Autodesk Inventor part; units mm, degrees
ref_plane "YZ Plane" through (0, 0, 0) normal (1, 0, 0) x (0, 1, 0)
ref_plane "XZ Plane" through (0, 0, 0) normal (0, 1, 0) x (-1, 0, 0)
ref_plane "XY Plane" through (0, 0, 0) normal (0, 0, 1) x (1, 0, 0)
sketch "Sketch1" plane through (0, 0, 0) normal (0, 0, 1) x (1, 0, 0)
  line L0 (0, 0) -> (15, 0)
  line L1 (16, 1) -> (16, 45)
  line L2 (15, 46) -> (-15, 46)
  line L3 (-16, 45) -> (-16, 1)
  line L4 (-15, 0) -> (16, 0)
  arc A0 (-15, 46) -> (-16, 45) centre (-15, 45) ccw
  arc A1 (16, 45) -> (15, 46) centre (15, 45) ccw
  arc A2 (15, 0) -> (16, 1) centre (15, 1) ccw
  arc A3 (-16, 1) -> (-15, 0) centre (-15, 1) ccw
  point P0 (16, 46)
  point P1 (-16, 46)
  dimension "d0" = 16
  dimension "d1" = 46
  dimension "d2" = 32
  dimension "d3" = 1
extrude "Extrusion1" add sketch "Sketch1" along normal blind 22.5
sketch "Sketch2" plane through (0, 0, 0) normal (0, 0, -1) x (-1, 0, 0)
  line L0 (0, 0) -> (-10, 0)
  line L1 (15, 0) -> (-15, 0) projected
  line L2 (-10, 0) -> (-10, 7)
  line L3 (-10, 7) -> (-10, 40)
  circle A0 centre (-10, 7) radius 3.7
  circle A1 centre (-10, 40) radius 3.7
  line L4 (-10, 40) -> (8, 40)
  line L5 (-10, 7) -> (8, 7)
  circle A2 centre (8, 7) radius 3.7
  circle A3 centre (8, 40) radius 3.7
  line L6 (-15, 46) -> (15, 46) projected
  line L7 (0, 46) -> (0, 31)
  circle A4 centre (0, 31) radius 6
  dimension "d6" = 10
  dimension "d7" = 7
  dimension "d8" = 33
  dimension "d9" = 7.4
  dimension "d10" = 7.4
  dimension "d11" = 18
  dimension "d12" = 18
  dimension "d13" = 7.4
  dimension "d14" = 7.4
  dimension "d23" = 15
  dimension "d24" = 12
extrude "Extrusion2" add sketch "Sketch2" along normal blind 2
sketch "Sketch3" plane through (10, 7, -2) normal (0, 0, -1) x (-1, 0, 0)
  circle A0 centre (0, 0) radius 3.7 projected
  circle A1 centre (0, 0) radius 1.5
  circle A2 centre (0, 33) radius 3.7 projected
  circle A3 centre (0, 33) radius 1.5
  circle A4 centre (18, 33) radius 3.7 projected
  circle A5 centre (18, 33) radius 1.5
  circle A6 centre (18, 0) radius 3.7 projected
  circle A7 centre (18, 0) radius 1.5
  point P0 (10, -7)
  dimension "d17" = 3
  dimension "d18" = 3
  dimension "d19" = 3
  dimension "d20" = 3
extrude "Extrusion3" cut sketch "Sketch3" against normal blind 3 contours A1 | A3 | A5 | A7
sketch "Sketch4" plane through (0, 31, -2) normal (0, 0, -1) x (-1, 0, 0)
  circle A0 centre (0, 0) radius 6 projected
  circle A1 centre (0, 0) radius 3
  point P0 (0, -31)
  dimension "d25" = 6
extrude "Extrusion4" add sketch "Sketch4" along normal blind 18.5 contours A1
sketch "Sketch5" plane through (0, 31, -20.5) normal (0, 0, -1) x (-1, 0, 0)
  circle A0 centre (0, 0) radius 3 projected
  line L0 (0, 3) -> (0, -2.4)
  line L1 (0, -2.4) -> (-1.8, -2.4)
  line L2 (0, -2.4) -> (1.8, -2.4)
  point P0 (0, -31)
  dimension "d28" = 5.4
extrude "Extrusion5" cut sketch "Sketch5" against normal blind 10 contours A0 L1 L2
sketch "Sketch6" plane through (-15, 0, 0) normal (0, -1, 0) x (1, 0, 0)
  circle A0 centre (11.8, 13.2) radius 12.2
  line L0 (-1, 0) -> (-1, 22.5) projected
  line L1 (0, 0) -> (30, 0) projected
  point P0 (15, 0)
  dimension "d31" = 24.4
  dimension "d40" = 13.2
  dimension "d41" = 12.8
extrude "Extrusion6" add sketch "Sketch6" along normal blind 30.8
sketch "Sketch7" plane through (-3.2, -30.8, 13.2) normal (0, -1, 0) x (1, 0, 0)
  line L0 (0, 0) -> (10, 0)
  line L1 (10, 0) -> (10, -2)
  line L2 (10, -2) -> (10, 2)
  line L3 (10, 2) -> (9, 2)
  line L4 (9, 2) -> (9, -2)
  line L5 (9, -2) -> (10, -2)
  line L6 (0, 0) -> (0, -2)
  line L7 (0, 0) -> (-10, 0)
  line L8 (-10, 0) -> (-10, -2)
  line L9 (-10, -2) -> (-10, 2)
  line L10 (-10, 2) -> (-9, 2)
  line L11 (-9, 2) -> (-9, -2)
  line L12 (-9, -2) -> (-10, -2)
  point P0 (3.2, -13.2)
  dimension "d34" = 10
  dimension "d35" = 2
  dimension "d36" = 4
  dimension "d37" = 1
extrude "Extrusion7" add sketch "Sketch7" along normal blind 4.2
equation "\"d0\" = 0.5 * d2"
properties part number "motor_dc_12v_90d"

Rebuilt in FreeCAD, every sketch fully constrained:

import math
import FreeCAD as App
import Part
import Sketcher
from FreeCAD import Vector
Q = App.Units.Quantity

doc = App.newDocument("Part")
params = doc.addObject("Spreadsheet::Sheet", "Params")
for row, (alias, value) in enumerate([
    ("sketch1_radius", "1 mm"),
    ("pad1_length", "22.5 mm"),
    ("sketch2_diameter", "12 mm"),
    ("sketch2_diameter2", "7.4 mm"),
    ("pad2_length", "2 mm"),
    ("sketch3_diameter", "3 mm"),
    ("pocket1_length", "3 mm"),
    ("sketch4_diameter", "6 mm"),
    ("pad3_length", "18.5 mm"),
    ("sketch5_radius", "3 mm"),
    ("sketch5_width", "3.6 mm"),
    ("pocket2_length", "10 mm"),
    ("sketch6_diameter", "24.4 mm"),
    ("pad4_length", "30.8 mm"),
    ("sketch7_width", "1 mm"),
    ("sketch7_height", "4 mm"),
    ("pad5_length", "4.2 mm"),
], start=1):
    params.set(f"A{row}", alias)
    params.set(f"B{row}", "=" + value)
    params.setAlias(f"B{row}", alias)

body = doc.addObject("PartDesign::Body", "Body")

# Sketch on XY plane
sketch1 = body.newObject("Sketcher::SketchObject", "Sketch")
sketch1.AttachmentSupport = (doc.getObject("XY_Plane"), [""])
sketch1.MapMode = "FlatFace"
sketch1.addGeometry(Part.LineSegment(Vector(-15, 0, 0), Vector(15, 0, 0)), False)
sketch1.addGeometry(Part.ArcOfCircle(Part.Circle(Vector(15, 1, 0), Vector(0, 0, 1), 1), math.radians(-90), math.radians(0)), False)
sketch1.addGeometry(Part.LineSegment(Vector(16, 1, 0), Vector(16, 45, 0)), False)
sketch1.addGeometry(Part.ArcOfCircle(Part.Circle(Vector(15, 45, 0), Vector(0, 0, 1), 1), math.radians(0), math.radians(90)), False)
sketch1.addGeometry(Part.LineSegment(Vector(15, 46, 0), Vector(-15, 46, 0)), False)
sketch1.addGeometry(Part.ArcOfCircle(Part.Circle(Vector(-15, 45, 0), Vector(0, 0, 1), 1), math.radians(90), math.radians(180)), False)
sketch1.addGeometry(Part.LineSegment(Vector(-16, 45, 0), Vector(-16, 1, 0)), False)
sketch1.addGeometry(Part.ArcOfCircle(Part.Circle(Vector(-15, 1, 0), Vector(0, 0, 1), 1), math.radians(180), math.radians(270)), False)
sketch1.addConstraint(Sketcher.Constraint("Tangent", 0, 2, 1, 1))
sketch1.addConstraint(Sketcher.Constraint("Tangent", 1, 2, 2, 1))
sketch1.addConstraint(Sketcher.Constraint("Tangent", 2, 2, 3, 1))
sketch1.addConstraint(Sketcher.Constraint("Tangent", 3, 2, 4, 1))
sketch1.addConstraint(Sketcher.Constraint("Tangent", 4, 2, 5, 1))
sketch1.addConstraint(Sketcher.Constraint("Tangent", 5, 2, 6, 1))
sketch1.addConstraint(Sketcher.Constraint("Tangent", 6, 2, 7, 1))
sketch1.addConstraint(Sketcher.Constraint("Tangent", 7, 2, 0, 1))
sketch1.addConstraint(Sketcher.Constraint("Horizontal", 0))
sketch1.addConstraint(Sketcher.Constraint("Vertical", 2))
sketch1.addConstraint(Sketcher.Constraint("Horizontal", 4))
sketch1.addConstraint(Sketcher.Constraint("Vertical", 6))
sketch1.addConstraint(Sketcher.Constraint("Equal", 1, 3))
sketch1.addConstraint(Sketcher.Constraint("Equal", 3, 5))
sketch1.addConstraint(Sketcher.Constraint("Equal", 5, 7))
sketch1.addConstraint(Sketcher.Constraint("Symmetric", 0, 2, 7, 2, -1, 1))
sketch1.addConstraint(Sketcher.Constraint("Radius", 1, Q("1 mm")))
sketch1.addConstraint(Sketcher.Constraint("DistanceX", -1, 1, 1, 2, Q("16 mm")))
sketch1.addConstraint(Sketcher.Constraint("DistanceY", -1, 1, 3, 2, Q("46 mm")))
sketch1.setExpression("Constraints[16]", "Params.sketch1_radius")
pad1 = body.newObject("PartDesign::Pad", "Pad")
pad1.Profile = sketch1
pad1.setExpression("Length", "Params.pad1_length")

# Sketch on XY plane
sketch2 = body.newObject("Sketcher::SketchObject", "Sketch001")
sketch2.AttachmentSupport = (doc.getObject("XY_Plane"), [""])
sketch2.MapMode = "FlatFace"
sketch2.addGeometry(Part.Circle(Vector(10, 7, 0), Vector(0, 0, 1), 3.7), False)
sketch2.addGeometry(Part.Circle(Vector(-8, 40, 0), Vector(0, 0, 1), 3.7), False)
sketch2.addGeometry(Part.Circle(Vector(0, 31, 0), Vector(0, 0, 1), 6), False)
sketch2.addGeometry(Part.Circle(Vector(10, 40, 0), Vector(0, 0, 1), 3.7), False)
sketch2.addGeometry(Part.Circle(Vector(-8, 7, 0), Vector(0, 0, 1), 3.7), False)
sketch2.addConstraint(Sketcher.Constraint("Equal", 0, 1))
sketch2.addConstraint(Sketcher.Constraint("Equal", 1, 3))
sketch2.addConstraint(Sketcher.Constraint("Equal", 3, 4))
sketch2.addConstraint(Sketcher.Constraint("PointOnObject", 2, 3, -2))
sketch2.addConstraint(Sketcher.Constraint("Horizontal", 1, 3, 3, 3))
sketch2.addConstraint(Sketcher.Constraint("Horizontal", 0, 3, 4, 3))
sketch2.addConstraint(Sketcher.Constraint("Vertical", 0, 3, 3, 3))
sketch2.addConstraint(Sketcher.Constraint("Vertical", 1, 3, 4, 3))
sketch2.addConstraint(Sketcher.Constraint("Diameter", 2, Q("12 mm")))
sketch2.addConstraint(Sketcher.Constraint("Diameter", 0, Q("7.4 mm")))
sketch2.addConstraint(Sketcher.Constraint("DistanceX", -1, 1, 0, 3, Q("10 mm")))
sketch2.addConstraint(Sketcher.Constraint("DistanceY", -1, 1, 0, 3, Q("7 mm")))
sketch2.addConstraint(Sketcher.Constraint("DistanceX", 1, 3, 0, 3, Q("18 mm")))
sketch2.addConstraint(Sketcher.Constraint("DistanceY", 0, 3, 1, 3, Q("33 mm")))
sketch2.addConstraint(Sketcher.Constraint("DistanceY", -1, 1, 2, 3, Q("31 mm")))
sketch2.setExpression("Constraints[8]", "Params.sketch2_diameter")
sketch2.setExpression("Constraints[9]", "Params.sketch2_diameter2")
pad2 = body.newObject("PartDesign::Pad", "Pad001")
pad2.Profile = sketch2
pad2.setExpression("Length", "Params.pad2_length")
pad2.Reversed = True

# Sketch on XY plane
sketch3 = body.newObject("Sketcher::SketchObject", "Sketch002")
sketch3.AttachmentSupport = (doc.getObject("XY_Plane"), [""])
sketch3.MapMode = "FlatFace"
sketch3.AttachmentOffset = App.Placement(Vector(0, 0, -2), App.Rotation())
sketch3.addGeometry(Part.Circle(Vector(10, 7, 0), Vector(0, 0, 1), 1.5), False)
sketch3.addGeometry(Part.Circle(Vector(10, 40, 0), Vector(0, 0, 1), 1.5), False)
sketch3.addGeometry(Part.Circle(Vector(-8, 40, 0), Vector(0, 0, 1), 1.5), False)
sketch3.addGeometry(Part.Circle(Vector(-8, 7, 0), Vector(0, 0, 1), 1.5), False)
sketch3.addConstraint(Sketcher.Constraint("Equal", 0, 1))
sketch3.addConstraint(Sketcher.Constraint("Equal", 1, 2))
sketch3.addConstraint(Sketcher.Constraint("Equal", 2, 3))
sketch3.addConstraint(Sketcher.Constraint("Horizontal", 1, 3, 2, 3))
sketch3.addConstraint(Sketcher.Constraint("Horizontal", 0, 3, 3, 3))
sketch3.addConstraint(Sketcher.Constraint("Vertical", 0, 3, 1, 3))
sketch3.addConstraint(Sketcher.Constraint("Vertical", 2, 3, 3, 3))
sketch3.addConstraint(Sketcher.Constraint("Diameter", 0, Q("3 mm")))
sketch3.addConstraint(Sketcher.Constraint("DistanceX", -1, 1, 0, 3, Q("10 mm")))
sketch3.addConstraint(Sketcher.Constraint("DistanceY", -1, 1, 0, 3, Q("7 mm")))
sketch3.addConstraint(Sketcher.Constraint("DistanceY", -1, 1, 1, 3, Q("40 mm")))
sketch3.addConstraint(Sketcher.Constraint("DistanceX", 2, 3, -1, 1, Q("8 mm")))
sketch3.setExpression("Constraints[7]", "Params.sketch3_diameter")
pocket1 = body.newObject("PartDesign::Pocket", "Pocket")
pocket1.Profile = sketch3
pocket1.setExpression("Length", "Params.pocket1_length")
pocket1.Reversed = True

# Sketch on XY plane
sketch4 = body.newObject("Sketcher::SketchObject", "Sketch003")
sketch4.AttachmentSupport = (doc.getObject("XY_Plane"), [""])
sketch4.MapMode = "FlatFace"
sketch4.AttachmentOffset = App.Placement(Vector(0, 0, -2), App.Rotation())
sketch4.addGeometry(Part.Circle(Vector(0, 31, 0), Vector(0, 0, 1), 3), False)
sketch4.addConstraint(Sketcher.Constraint("PointOnObject", 0, 3, -2))
sketch4.addConstraint(Sketcher.Constraint("Diameter", 0, Q("6 mm")))
sketch4.addConstraint(Sketcher.Constraint("DistanceY", -1, 1, 0, 3, Q("31 mm")))
sketch4.setExpression("Constraints[1]", "Params.sketch4_diameter")
pad3 = body.newObject("PartDesign::Pad", "Pad002")
pad3.Profile = sketch4
pad3.setExpression("Length", "Params.pad3_length")
pad3.Reversed = True

# Sketch on XY plane
sketch5 = body.newObject("Sketcher::SketchObject", "Sketch004")
sketch5.AttachmentSupport = (doc.getObject("XY_Plane"), [""])
sketch5.MapMode = "FlatFace"
sketch5.AttachmentOffset = App.Placement(Vector(0, 0, -20.5), App.Rotation())
sketch5.addGeometry(Part.ArcOfCircle(Part.Circle(Vector(0, 31, 0), Vector(0, 0, 1), 3), math.radians(-127), math.radians(-53)), False)
sketch5.addGeometry(Part.LineSegment(Vector(-1.8, 28.6, 0), Vector(1.8, 28.6, 0)), False)
sketch5.addConstraint(Sketcher.Constraint("Coincident", 0, 1, 1, 1))
sketch5.addConstraint(Sketcher.Constraint("Coincident", 1, 2, 0, 2))
sketch5.addConstraint(Sketcher.Constraint("Horizontal", 1))
sketch5.addConstraint(Sketcher.Constraint("PointOnObject", 0, 3, -2))
sketch5.addConstraint(Sketcher.Constraint("Radius", 0, Q("3 mm")))
sketch5.addConstraint(Sketcher.Constraint("DistanceX", 1, 1, 1, 2, Q("3.6 mm")))
sketch5.addConstraint(Sketcher.Constraint("DistanceY", -1, 1, 0, 3, Q("31 mm")))
sketch5.setExpression("Constraints[4]", "Params.sketch5_radius")
sketch5.setExpression("Constraints[5]", "Params.sketch5_width")
pocket2 = body.newObject("PartDesign::Pocket", "Pocket001")
pocket2.Profile = sketch5
pocket2.setExpression("Length", "Params.pocket2_length")
pocket2.Reversed = True

# Sketch on XZ plane
sketch6 = body.newObject("Sketcher::SketchObject", "Sketch005")
sketch6.AttachmentSupport = (doc.getObject("XZ_Plane"), [""])
sketch6.MapMode = "FlatFace"
sketch6.addGeometry(Part.Circle(Vector(-3, 13, 0), Vector(0, 0, 1), 12), False)
sketch6.addConstraint(Sketcher.Constraint("Diameter", 0, Q("24.4 mm")))
sketch6.addConstraint(Sketcher.Constraint("DistanceY", -1, 1, 0, 3, Q("13.2 mm")))
sketch6.addConstraint(Sketcher.Constraint("DistanceX", 0, 3, -1, 1, Q("3.2 mm")))
sketch6.setExpression("Constraints[0]", "Params.sketch6_diameter")
pad4 = body.newObject("PartDesign::Pad", "Pad003")
pad4.Profile = sketch6
pad4.setExpression("Length", "Params.pad4_length")

# Sketch on XZ plane
sketch7 = body.newObject("Sketcher::SketchObject", "Sketch006")
sketch7.AttachmentSupport = (doc.getObject("XZ_Plane"), [""])
sketch7.MapMode = "FlatFace"
sketch7.AttachmentOffset = App.Placement(Vector(0, 0, 30.8), App.Rotation())
sketch7.addGeometry(Part.LineSegment(Vector(5.8, 15.2, 0), Vector(5.8, 11.2, 0)), False)
sketch7.addGeometry(Part.LineSegment(Vector(5.8, 11.2, 0), Vector(6.8, 11.2, 0)), False)
sketch7.addGeometry(Part.LineSegment(Vector(6.8, 11.2, 0), Vector(6.8, 15.2, 0)), False)
sketch7.addGeometry(Part.LineSegment(Vector(6.8, 15.2, 0), Vector(5.8, 15.2, 0)), False)
sketch7.addGeometry(Part.LineSegment(Vector(-12.2, 11.2, 0), Vector(-12.2, 15.2, 0)), False)
sketch7.addGeometry(Part.LineSegment(Vector(-12.2, 15.2, 0), Vector(-13.2, 15.2, 0)), False)
sketch7.addGeometry(Part.LineSegment(Vector(-13.2, 15.2, 0), Vector(-13.2, 11.2, 0)), False)
sketch7.addGeometry(Part.LineSegment(Vector(-13.2, 11.2, 0), Vector(-12.2, 11.2, 0)), False)
sketch7.addConstraint(Sketcher.Constraint("Coincident", 0, 2, 1, 1))
sketch7.addConstraint(Sketcher.Constraint("Coincident", 1, 2, 2, 1))
sketch7.addConstraint(Sketcher.Constraint("Coincident", 2, 2, 3, 1))
sketch7.addConstraint(Sketcher.Constraint("Coincident", 3, 2, 0, 1))
sketch7.addConstraint(Sketcher.Constraint("Coincident", 4, 2, 5, 1))
sketch7.addConstraint(Sketcher.Constraint("Coincident", 5, 2, 6, 1))
sketch7.addConstraint(Sketcher.Constraint("Coincident", 6, 2, 7, 1))
sketch7.addConstraint(Sketcher.Constraint("Coincident", 7, 2, 4, 1))
sketch7.addConstraint(Sketcher.Constraint("Vertical", 0))
sketch7.addConstraint(Sketcher.Constraint("Horizontal", 1))
sketch7.addConstraint(Sketcher.Constraint("Vertical", 2))
sketch7.addConstraint(Sketcher.Constraint("Horizontal", 3))
sketch7.addConstraint(Sketcher.Constraint("Vertical", 4))
sketch7.addConstraint(Sketcher.Constraint("Horizontal", 5))
sketch7.addConstraint(Sketcher.Constraint("Vertical", 6))
sketch7.addConstraint(Sketcher.Constraint("Horizontal", 7))
sketch7.addConstraint(Sketcher.Constraint("Horizontal", 3, 2, 4, 2))
sketch7.addConstraint(Sketcher.Constraint("Horizontal", 1, 2, 6, 2))
sketch7.addConstraint(Sketcher.Constraint("Equal", 3, 5))
sketch7.addConstraint(Sketcher.Constraint("DistanceX", 1, 1, 1, 2, Q("1 mm")))
sketch7.addConstraint(Sketcher.Constraint("DistanceY", 0, 2, 0, 1, Q("4 mm")))
sketch7.addConstraint(Sketcher.Constraint("DistanceX", 4, 2, 3, 2, Q("18 mm")))
sketch7.addConstraint(Sketcher.Constraint("DistanceX", -1, 1, 0, 2, Q("5.8 mm")))
sketch7.addConstraint(Sketcher.Constraint("DistanceY", -1, 1, 0, 2, Q("11.2 mm")))
sketch7.setExpression("Constraints[19]", "Params.sketch7_width")
sketch7.setExpression("Constraints[20]", "Params.sketch7_height")
pad5 = body.newObject("PartDesign::Pad", "Pad004")
pad5.Profile = sketch7
pad5.setExpression("Length", "Params.pad5_length")

doc.recompute()
